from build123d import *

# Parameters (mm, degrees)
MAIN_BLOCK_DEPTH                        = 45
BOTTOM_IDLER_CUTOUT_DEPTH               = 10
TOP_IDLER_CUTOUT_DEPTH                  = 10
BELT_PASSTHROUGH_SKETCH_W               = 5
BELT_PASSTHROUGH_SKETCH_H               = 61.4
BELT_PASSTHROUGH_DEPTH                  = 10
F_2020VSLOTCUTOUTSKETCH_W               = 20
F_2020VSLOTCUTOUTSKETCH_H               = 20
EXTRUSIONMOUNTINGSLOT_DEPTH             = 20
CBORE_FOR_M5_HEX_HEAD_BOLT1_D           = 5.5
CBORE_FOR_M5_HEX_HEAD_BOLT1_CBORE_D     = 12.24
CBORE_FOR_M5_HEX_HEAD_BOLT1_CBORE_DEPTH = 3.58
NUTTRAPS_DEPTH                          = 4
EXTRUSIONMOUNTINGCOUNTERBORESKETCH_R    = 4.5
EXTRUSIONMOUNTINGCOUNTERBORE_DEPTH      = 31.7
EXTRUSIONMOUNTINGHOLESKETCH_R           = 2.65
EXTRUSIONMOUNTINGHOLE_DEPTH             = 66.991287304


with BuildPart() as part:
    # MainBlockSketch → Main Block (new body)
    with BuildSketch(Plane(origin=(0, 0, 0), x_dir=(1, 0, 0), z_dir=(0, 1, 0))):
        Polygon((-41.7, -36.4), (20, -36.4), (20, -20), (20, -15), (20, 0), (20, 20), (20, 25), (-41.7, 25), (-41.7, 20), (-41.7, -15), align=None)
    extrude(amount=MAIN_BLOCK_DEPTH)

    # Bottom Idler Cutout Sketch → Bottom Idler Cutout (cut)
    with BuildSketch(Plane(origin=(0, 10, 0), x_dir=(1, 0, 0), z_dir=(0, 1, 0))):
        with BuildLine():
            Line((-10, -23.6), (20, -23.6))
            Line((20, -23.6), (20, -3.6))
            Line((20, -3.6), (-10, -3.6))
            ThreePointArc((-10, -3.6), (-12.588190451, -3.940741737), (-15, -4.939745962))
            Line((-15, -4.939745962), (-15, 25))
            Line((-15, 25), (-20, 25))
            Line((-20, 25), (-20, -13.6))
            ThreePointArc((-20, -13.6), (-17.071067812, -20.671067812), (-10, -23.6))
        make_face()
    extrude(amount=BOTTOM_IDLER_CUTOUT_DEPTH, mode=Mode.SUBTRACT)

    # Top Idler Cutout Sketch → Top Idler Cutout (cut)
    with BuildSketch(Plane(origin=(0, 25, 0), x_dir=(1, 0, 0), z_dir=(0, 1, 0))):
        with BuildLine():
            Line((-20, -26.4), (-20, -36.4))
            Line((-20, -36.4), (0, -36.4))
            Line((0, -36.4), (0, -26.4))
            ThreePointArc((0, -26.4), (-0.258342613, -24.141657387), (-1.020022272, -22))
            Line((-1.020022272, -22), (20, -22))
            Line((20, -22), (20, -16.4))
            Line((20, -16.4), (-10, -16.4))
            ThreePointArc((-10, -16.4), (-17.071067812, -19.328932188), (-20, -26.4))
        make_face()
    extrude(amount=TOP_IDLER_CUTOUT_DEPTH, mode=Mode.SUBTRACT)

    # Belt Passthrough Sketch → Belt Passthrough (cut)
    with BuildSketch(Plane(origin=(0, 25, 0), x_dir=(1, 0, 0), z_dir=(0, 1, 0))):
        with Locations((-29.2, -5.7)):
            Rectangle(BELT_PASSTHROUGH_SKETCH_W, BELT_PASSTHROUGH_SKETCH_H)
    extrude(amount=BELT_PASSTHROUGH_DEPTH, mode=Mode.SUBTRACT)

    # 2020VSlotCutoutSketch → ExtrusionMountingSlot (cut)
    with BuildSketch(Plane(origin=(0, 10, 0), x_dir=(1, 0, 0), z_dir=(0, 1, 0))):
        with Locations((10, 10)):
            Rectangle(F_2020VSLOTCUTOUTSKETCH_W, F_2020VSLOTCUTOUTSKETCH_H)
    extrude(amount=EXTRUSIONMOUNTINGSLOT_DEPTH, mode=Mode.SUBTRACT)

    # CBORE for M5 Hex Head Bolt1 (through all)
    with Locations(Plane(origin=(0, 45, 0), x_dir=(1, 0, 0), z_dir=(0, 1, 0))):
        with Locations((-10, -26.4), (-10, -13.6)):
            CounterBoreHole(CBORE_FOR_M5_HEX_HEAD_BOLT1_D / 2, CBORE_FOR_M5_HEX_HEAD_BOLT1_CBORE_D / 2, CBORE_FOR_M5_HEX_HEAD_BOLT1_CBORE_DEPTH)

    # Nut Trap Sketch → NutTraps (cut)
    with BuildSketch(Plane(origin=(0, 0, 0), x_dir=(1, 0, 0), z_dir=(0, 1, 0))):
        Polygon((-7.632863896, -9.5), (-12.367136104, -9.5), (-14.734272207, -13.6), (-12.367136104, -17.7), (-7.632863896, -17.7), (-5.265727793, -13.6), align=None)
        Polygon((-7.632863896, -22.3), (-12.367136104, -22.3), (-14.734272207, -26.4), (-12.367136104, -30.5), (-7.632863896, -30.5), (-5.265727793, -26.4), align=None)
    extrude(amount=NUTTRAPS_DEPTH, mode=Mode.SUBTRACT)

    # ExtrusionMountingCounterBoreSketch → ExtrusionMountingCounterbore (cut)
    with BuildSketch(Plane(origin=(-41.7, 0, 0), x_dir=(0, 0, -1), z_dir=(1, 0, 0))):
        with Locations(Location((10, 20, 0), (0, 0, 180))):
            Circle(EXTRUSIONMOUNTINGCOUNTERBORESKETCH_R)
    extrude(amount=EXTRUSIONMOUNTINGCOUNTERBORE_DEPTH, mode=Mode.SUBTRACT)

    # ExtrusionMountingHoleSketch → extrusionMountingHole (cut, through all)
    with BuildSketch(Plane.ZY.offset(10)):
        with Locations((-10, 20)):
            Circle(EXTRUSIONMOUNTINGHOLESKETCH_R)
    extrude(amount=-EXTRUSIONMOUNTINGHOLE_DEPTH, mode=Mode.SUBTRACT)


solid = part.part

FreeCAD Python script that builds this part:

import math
import FreeCAD as App
import Part
import Sketcher
from FreeCAD import Vector
Q = App.Units.Quantity


def add_polygon(sketch, points):
    """Adds a closed chain of lines whose ends are joined by coincident constraints."""
    first, n = sketch.GeometryCount, len(points)
    for a, b in zip(points, points[1:] + points[:1]):
        sketch.addGeometry(Part.LineSegment(App.Vector(*a, 0), App.Vector(*b, 0)), False)
    for i in range(n):
        sketch.addConstraint(Sketcher.Constraint("Coincident", first + i, 2, first + (i + 1) % n, 1))

doc = App.newDocument("Part")
params = doc.addObject("Spreadsheet::Sheet", "Params")
for row, (alias, value) in enumerate([
    ("sketch1_width", "61.7 mm"),
    ("sketch1_height", "61.4 mm"),
    ("pad1_length", "45 mm"),
    ("sketch2_radius", "10 mm"),
    ("sketch2_width", "30 mm"),
    ("sketch2_width2", "5 mm"),
    ("sketch2_height", "38.6 mm"),
    ("pocket1_length", "10 mm"),
    ("sketch3_radius", "10 mm"),
    ("sketch3_width", "30 mm"),
    ("sketch3_height", "10 mm"),
    ("sketch3_height2", "5.6 mm"),
    ("pocket2_length", "10 mm"),
    ("sketch4_width", "5 mm"),
    ("sketch4_height", "61.4 mm"),
    ("pocket3_length", "10 mm"),
    ("sketch5_width", "20 mm"),
    ("pocket4_length", "20 mm"),
    ("sketch6_diameter", "5.5 mm"),
    ("hole_diameter", "5.5 mm"),
    ("hole_cbore_diameter", "12.24 mm"),
    ("hole_cbore_depth", "3.58 mm"),
    ("pocket5_length", "4 mm"),
    ("sketch8_diameter", "9 mm"),
    ("pocket6_length", "31.7 mm"),
    ("sketch9_diameter", "5.3 mm"),
], start=1):
    params.set(f"A{row}", alias)
    params.set(f"B{row}", "=" + value)
    params.setAlias(f"B{row}", alias)

body = doc.addObject("PartDesign::Body", "Body")

sketch1 = body.newObject("Sketcher::SketchObject", "Sketch")
sketch1.AttachmentSupport = (doc.getObject("XZ_Plane"), [""])
sketch1.MapMode = "FlatFace"
add_polygon(sketch1, [(-42, 36), (20, 36), (20, -25), (-42, -25)])
sketch1.addConstraint(Sketcher.Constraint("Horizontal", 0))
sketch1.addConstraint(Sketcher.Constraint("Vertical", 1))
sketch1.addConstraint(Sketcher.Constraint("Horizontal", 2))
sketch1.addConstraint(Sketcher.Constraint("Vertical", 3))
sketch1.addConstraint(Sketcher.Constraint("DistanceX", 0, 1, 0, 2, 61.7))
sketch1.addConstraint(Sketcher.Constraint("DistanceY", 1, 2, 1, 1, 61.4))
sketch1.addConstraint(Sketcher.Constraint("DistanceX", -1, 1, 0, 2, 20.0))
sketch1.addConstraint(Sketcher.Constraint("DistanceY", 1, 2, -1, 1, 25.0))
sketch1.setExpression("Constraints[8]", "Params.sketch1_width")
sketch1.setExpression("Constraints[9]", "Params.sketch1_height")
pad1 = body.newObject("PartDesign::Pad", "Pad")
pad1.Profile = sketch1
pad1.setExpression("Length", "Params.pad1_length")
pad1.Reversed = True

sketch2 = body.newObject("Sketcher::SketchObject", "Sketch001")
sketch2.AttachmentSupport = (doc.getObject("XZ_Plane"), [""])
sketch2.MapMode = "FlatFace"
sketch2.AttachmentOffset = App.Placement(Vector(0, 0, -10), App.Rotation())
sketch2.addGeometry(Part.LineSegment(Vector(-10, 24, 0), Vector(20, 24, 0)), False)
sketch2.addGeometry(Part.LineSegment(Vector(20, 24, 0), Vector(20, 4, 0)), False)
sketch2.addGeometry(Part.LineSegment(Vector(20, 4, 0), Vector(-10, 4, 0)), False)
sketch2.addGeometry(Part.ArcOfCircle(Part.Circle(Vector(-10, 14, 0), Vector(0, 0, 1), 10), math.radians(-120), math.radians(-90)), False)
sketch2.addGeometry(Part.LineSegment(Vector(-15, 5, 0), Vector(-15, -25, 0)), False)
sketch2.addGeometry(Part.LineSegment(Vector(-15, -25, 0), Vector(-20, -25, 0)), False)
sketch2.addGeometry(Part.LineSegment(Vector(-20, -25, 0), Vector(-20, 14, 0)), False)
sketch2.addGeometry(Part.ArcOfCircle(Part.Circle(Vector(-10, 14, 0), Vector(0, 0, 1), 10), math.radians(90), math.radians(180)), False)
sketch2.addConstraint(Sketcher.Constraint("Coincident", 0, 2, 1, 1))
sketch2.addConstraint(Sketcher.Constraint("Coincident", 1, 2, 2, 1))
sketch2.addConstraint(Sketcher.Constraint("Tangent", 2, 2, 3, 2))
sketch2.addConstraint(Sketcher.Constraint("Coincident", 3, 1, 4, 1))
sketch2.addConstraint(Sketcher.Constraint("Coincident", 4, 2, 5, 1))
sketch2.addConstraint(Sketcher.Constraint("Coincident", 5, 2, 6, 1))
sketch2.addConstraint(Sketcher.Constraint("Tangent", 6, 2, 7, 2))
sketch2.addConstraint(Sketcher.Constraint("Tangent", 7, 1, 0, 1))
sketch2.addConstraint(Sketcher.Constraint("Horizontal", 0))
sketch2.addConstraint(Sketcher.Constraint("Vertical", 1))
sketch2.addConstraint(Sketcher.Constraint("Horizontal", 2))
sketch2.addConstraint(Sketcher.Constraint("Vertical", 4))
sketch2.addConstraint(Sketcher.Constraint("Horizontal", 5))
sketch2.addConstraint(Sketcher.Constraint("Vertical", 6))
sketch2.addConstraint(Sketcher.Constraint("Coincident", 7, 3, 3, 3))
sketch2.addConstraint(Sketcher.Constraint("Equal", 3, 7))
sketch2.addConstraint(Sketcher.Constraint("Radius", 3, 10.0))
sketch2.addConstraint(Sketcher.Constraint("DistanceX", 0, 1, 0, 2, 30.0))
sketch2.addConstraint(Sketcher.Constraint("DistanceX", 5, 2, 5, 1, 5.0))
sketch2.addConstraint(Sketcher.Constraint("DistanceY", 6, 1, 6, 2, 38.6))
sketch2.addConstraint(Sketcher.Constraint("DistanceX", 3, 3, -1, 1, 10.0))
sketch2.addConstraint(Sketcher.Constraint("DistanceY", 4, 2, -1, 1, 25.0))
sketch2.setExpression("Constraints[16]", "Params.sketch2_radius")
sketch2.setExpression("Constraints[17]", "Params.sketch2_width")
sketch2.setExpression("Constraints[18]", "Params.sketch2_width2")
sketch2.setExpression("Constraints[19]", "Params.sketch2_height")
pocket1 = body.newObject("PartDesign::Pocket", "Pocket")
pocket1.Profile = sketch2
pocket1.setExpression("Length", "Params.pocket1_length")

sketch3 = body.newObject("Sketcher::SketchObject", "Sketch002")
sketch3.AttachmentSupport = (doc.getObject("XZ_Plane"), [""])
sketch3.MapMode = "FlatFace"
sketch3.AttachmentOffset = App.Placement(Vector(0, 0, -25), App.Rotation())
sketch3.addGeometry(Part.LineSegment(Vector(-20, 26.4, 0), Vector(-20, 36.4, 0)), False)
sketch3.addGeometry(Part.LineSegment(Vector(-20, 36.4, 0), Vector(0, 36.4, 0)), False)
sketch3.addGeometry(Part.LineSegment(Vector(0, 36.4, 0), Vector(0, 26.4, 0)), False)
sketch3.addGeometry(Part.ArcOfCircle(Part.Circle(Vector(-10, 26.4, 0), Vector(0, 0, 1), 10), math.radians(-26), math.radians(0)), False)
sketch3.addGeometry(Part.LineSegment(Vector(-1, 22, 0), Vector(20, 22, 0)), False)
sketch3.addGeometry(Part.LineSegment(Vector(20, 22, 0), Vector(20, 16.4, 0)), False)
sketch3.addGeometry(Part.LineSegment(Vector(20, 16.4, 0), Vector(-10, 16.4, 0)), False)
sketch3.addGeometry(Part.ArcOfCircle(Part.Circle(Vector(-10, 26.4, 0), Vector(0, 0, 1), 10), math.radians(180), math.radians(270)), False)
sketch3.addConstraint(Sketcher.Constraint("Coincident", 0, 2, 1, 1))
sketch3.addConstraint(Sketcher.Constraint("Coincident", 1, 2, 2, 1))
sketch3.addConstraint(Sketcher.Constraint("Tangent", 2, 2, 3, 2))
sketch3.addConstraint(Sketcher.Constraint("Coincident", 3, 1, 4, 1))
sketch3.addConstraint(Sketcher.Constraint("Coincident", 4, 2, 5, 1))
sketch3.addConstraint(Sketcher.Constraint("Coincident", 5, 2, 6, 1))
sketch3.addConstraint(Sketcher.Constraint("Tangent", 6, 2, 7, 2))
sketch3.addConstraint(Sketcher.Constraint("Tangent", 7, 1, 0, 1))
sketch3.addConstraint(Sketcher.Constraint("Vertical", 0))
sketch3.addConstraint(Sketcher.Constraint("Horizontal", 1))
sketch3.addConstraint(Sketcher.Constraint("Vertical", 2))
sketch3.addConstraint(Sketcher.Constraint("Horizontal", 4))
sketch3.addConstraint(Sketcher.Constraint("Vertical", 5))
sketch3.addConstraint(Sketcher.Constraint("Horizontal", 6))
sketch3.addConstraint(Sketcher.Constraint("Coincident", 7, 3, 3, 3))
sketch3.addConstraint(Sketcher.Constraint("Equal", 3, 7))
sketch3.addConstraint(Sketcher.Constraint("PointOnObject", 1, 2, -2))
sketch3.addConstraint(Sketcher.Constraint("Radius", 3, 10.0))
sketch3.addConstraint(Sketcher.Constraint("DistanceX", 6, 2, 6, 1, 30.0))
sketch3.addConstraint(Sketcher.Constraint("DistanceY", 0, 1, 0, 2, 10.0))
sketch3.addConstraint(Sketcher.Constraint("DistanceY", 5, 2, 5, 1, 5.6))
sketch3.addConstraint(Sketcher.Constraint("DistanceY", -1, 1, 3, 1, 22.0))
sketch3.setExpression("Constraints[17]", "Params.sketch3_radius")
sketch3.setExpression("Constraints[18]", "Params.sketch3_width")
sketch3.setExpression("Constraints[19]", "Params.sketch3_height")
sketch3.setExpression("Constraints[20]", "Params.sketch3_height2")
pocket2 = body.newObject("PartDesign::Pocket", "Pocket001")
pocket2.Profile = sketch3
pocket2.setExpression("Length", "Params.pocket2_length")

sketch4 = body.newObject("Sketcher::SketchObject", "Sketch003")
sketch4.AttachmentSupport = (doc.getObject("XZ_Plane"), [""])
sketch4.MapMode = "FlatFace"
sketch4.AttachmentOffset = App.Placement(Vector(0, 0, -25), App.Rotation())
add_polygon(sketch4, [(-32, -25), (-32, 36), (-27, 36), (-27, -25)])
sketch4.addConstraint(Sketcher.Constraint("Vertical", 0))
sketch4.addConstraint(Sketcher.Constraint("Horizontal", 1))
sketch4.addConstraint(Sketcher.Constraint("Vertical", 2))
sketch4.addConstraint(Sketcher.Constraint("Horizontal", 3))
sketch4.addConstraint(Sketcher.Constraint("DistanceX", 1, 1, 1, 2, 5.0))
sketch4.addConstraint(Sketcher.Constraint("DistanceY", 0, 1, 0, 2, 61.4))
sketch4.addConstraint(Sketcher.Constraint("DistanceY", 2, 2, -1, 1, 25.0))
sketch4.addConstraint(Sketcher.Constraint("DistanceX", 0, 2, -1, 1, 31.7))
sketch4.setExpression("Constraints[8]", "Params.sketch4_width")
sketch4.setExpression("Constraints[9]", "Params.sketch4_height")
pocket3 = body.newObject("PartDesign::Pocket", "Pocket002")
pocket3.Profile = sketch4
pocket3.setExpression("Length", "Params.pocket3_length")

sketch5 = body.newObject("Sketcher::SketchObject", "Sketch004")
sketch5.AttachmentSupport = (doc.getObject("XZ_Plane"), [""])
sketch5.MapMode = "FlatFace"
sketch5.AttachmentOffset = App.Placement(Vector(0, 0, -10), App.Rotation())
add_polygon(sketch5, [(0, -20), (0, 0), (20, 0), (20, -20)])
sketch5.addConstraint(Sketcher.Constraint("Vertical", 0))
sketch5.addConstraint(Sketcher.Constraint("Horizontal", 1))
sketch5.addConstraint(Sketcher.Constraint("Vertical", 2))
sketch5.addConstraint(Sketcher.Constraint("Horizontal", 3))
sketch5.addConstraint(Sketcher.Constraint("Coincident", 0, 2, -1, 1))
sketch5.addConstraint(Sketcher.Constraint("Equal", 3, 0))
sketch5.addConstraint(Sketcher.Constraint("DistanceX", 1, 1, 1, 2, 20.0))
sketch5.setExpression("Constraints[10]", "Params.sketch5_width")
pocket4 = body.newObject("PartDesign::Pocket", "Pocket003")
pocket4.Profile = sketch5
pocket4.setExpression("Length", "Params.pocket4_length")

sketch6 = body.newObject("Sketcher::SketchObject", "Sketch005")
sketch6.AttachmentSupport = (doc.getObject("XZ_Plane"), [""])
sketch6.MapMode = "FlatFace"
sketch6.AttachmentOffset = App.Placement(Vector(0, 0, -45), App.Rotation())
sketch6.addGeometry(Part.Circle(Vector(-10, 26.4, 0), Vector(0, 0, 1), 2.8), False)
sketch6.addGeometry(Part.Circle(Vector(-10, 13.6, 0), Vector(0, 0, 1), 2.8), False)
sketch6.addConstraint(Sketcher.Constraint("Equal", 0, 1))
sketch6.addConstraint(Sketcher.Constraint("Vertical", 0, 3, 1, 3))
sketch6.addConstraint(Sketcher.Constraint("Diameter", 0, 5.5))
sketch6.addConstraint(Sketcher.Constraint("DistanceX", 0, 3, -1, 1, 10.0))
sketch6.addConstraint(Sketcher.Constraint("DistanceY", -1, 1, 0, 3, 26.4))
sketch6.addConstraint(Sketcher.Constraint("DistanceY", -1, 1, 1, 3, 13.6))
sketch6.setExpression("Constraints[2]", "Params.sketch6_diameter")
doc.recompute()
hole = body.newObject("PartDesign::Hole", "Hole")
hole.Profile = sketch6
hole.ThreadType = "None"
hole.setExpression("Diameter", "Params.hole_diameter")
hole.DepthType = "ThroughAll"
hole.HoleCutType = "Counterbore"
hole.setExpression("HoleCutDiameter", "Params.hole_cbore_diameter")
hole.setExpression("HoleCutDepth", "Params.hole_cbore_depth")
hole.Reversed = True

sketch7 = body.newObject("Sketcher::SketchObject", "Sketch006")
sketch7.AttachmentSupport = (doc.getObject("XZ_Plane"), [""])
sketch7.MapMode = "FlatFace"
add_polygon(sketch7, [(-7.6, 9.5), (-12.4, 9.5), (-14.7, 13.6), (-12.4, 17.7), (-7.6, 17.7), (-5.3, 13.6)])
add_polygon(sketch7, [(-7.6, 22.3), (-12.4, 22.3), (-14.7, 26.4), (-12.4, 30.5), (-7.6, 30.5), (-5.3, 26.4)])
sketch7.addConstraint(Sketcher.Constraint("Horizontal", 0))
sketch7.addConstraint(Sketcher.Constraint("Horizontal", 3))
sketch7.addConstraint(Sketcher.Constraint("Horizontal", 6))
sketch7.addConstraint(Sketcher.Constraint("Horizontal", 9))
sketch7.addConstraint(Sketcher.Constraint("Parallel", 1, 4))
sketch7.addConstraint(Sketcher.Constraint("Parallel", 2, 5))
sketch7.addConstraint(Sketcher.Constraint("Parallel", 4, 7))
sketch7.addConstraint(Sketcher.Constraint("Parallel", 5, 8))
sketch7.addConstraint(Sketcher.Constraint("Parallel", 7, 10))
sketch7.addConstraint(Sketcher.Constraint("Parallel", 8, 11))
sketch7.addConstraint(Sketcher.Constraint("Horizontal", 1, 2, 4, 2))
sketch7.addConstraint(Sketcher.Constraint("Horizontal", 7, 2, 10, 2))
sketch7.addConstraint(Sketcher.Constraint("Vertical", 0, 2, 2, 2))
sketch7.addConstraint(Sketcher.Constraint("Vertical", 3, 2, 5, 2))
sketch7.addConstraint(Sketcher.Constraint("Vertical", 2, 2, 6, 2))
sketch7.addConstraint(Sketcher.Constraint("Vertical", 1, 2, 7, 2))
sketch7.addConstraint(Sketcher.Constraint("Vertical", 6, 2, 8, 2))
sketch7.addConstraint(Sketcher.Constraint("Vertical", 5, 2, 9, 2))
sketch7.addConstraint(Sketcher.Constraint("Angle", 1, Q("120 deg")))
sketch7.addConstraint(Sketcher.Constraint("DistanceY", -1, 1, 0, 2, 9.5))
sketch7.addConstraint(Sketcher.Constraint("DistanceY", -1, 1, 1, 2, 13.6))
sketch7.addConstraint(Sketcher.Constraint("DistanceY", -1, 1, 6, 2, 22.3))
sketch7.addConstraint(Sketcher.Constraint("DistanceX", 0, 2, 0, 1, 4.734272))
sketch7.addConstraint(Sketcher.Constraint("DistanceX", 0, 2, -1, 1, 12.367136))
pocket5 = body.newObject("PartDesign::Pocket", "Pocket004")
pocket5.Profile = sketch7
pocket5.setExpression("Length", "Params.pocket5_length")

sketch8 = body.newObject("Sketcher::SketchObject", "Sketch007")
sketch8.AttachmentSupport = (doc.getObject("YZ_Plane"), [""])
sketch8.MapMode = "FlatFace"
sketch8.AttachmentOffset = App.Placement(Vector(0, 0, -41.7), App.Rotation())
sketch8.addGeometry(Part.Circle(Vector(20, -10, 0), Vector(0, 0, 1), 4.5), False)
sketch8.addConstraint(Sketcher.Constraint("Diameter", 0, 9.0))
sketch8.addConstraint(Sketcher.Constraint("DistanceX", -1, 1, 0, 3, 20.0))
sketch8.addConstraint(Sketcher.Constraint("DistanceY", 0, 3, -1, 1, 10.0))
sketch8.setExpression("Constraints[0]", "Params.sketch8_diameter")
pocket6 = body.newObject("PartDesign::Pocket", "Pocket005")
pocket6.Profile = sketch8
pocket6.setExpression("Length", "Params.pocket6_length")
pocket6.Reversed = True

sketch9 = body.newObject("Sketcher::SketchObject", "Sketch008")
sketch9.AttachmentSupport = (doc.getObject("YZ_Plane"), [""])
sketch9.MapMode = "FlatFace"
sketch9.AttachmentOffset = App.Placement(Vector(0, 0, -10), App.Rotation())
sketch9.addGeometry(Part.Circle(Vector(20, -10, 0), Vector(0, 0, 1), 2.6), False)
sketch9.addConstraint(Sketcher.Constraint("Diameter", 0, 5.3))
sketch9.addConstraint(Sketcher.Constraint("DistanceX", -1, 1, 0, 3, 20.0))
sketch9.addConstraint(Sketcher.Constraint("DistanceY", 0, 3, -1, 1, 10.0))
sketch9.setExpression("Constraints[0]", "Params.sketch9_diameter")
pocket7 = body.newObject("PartDesign::Pocket", "Pocket006")
pocket7.Profile = sketch9
pocket7.Type = "ThroughAll"
pocket7.Reversed = True

doc.recompute()
